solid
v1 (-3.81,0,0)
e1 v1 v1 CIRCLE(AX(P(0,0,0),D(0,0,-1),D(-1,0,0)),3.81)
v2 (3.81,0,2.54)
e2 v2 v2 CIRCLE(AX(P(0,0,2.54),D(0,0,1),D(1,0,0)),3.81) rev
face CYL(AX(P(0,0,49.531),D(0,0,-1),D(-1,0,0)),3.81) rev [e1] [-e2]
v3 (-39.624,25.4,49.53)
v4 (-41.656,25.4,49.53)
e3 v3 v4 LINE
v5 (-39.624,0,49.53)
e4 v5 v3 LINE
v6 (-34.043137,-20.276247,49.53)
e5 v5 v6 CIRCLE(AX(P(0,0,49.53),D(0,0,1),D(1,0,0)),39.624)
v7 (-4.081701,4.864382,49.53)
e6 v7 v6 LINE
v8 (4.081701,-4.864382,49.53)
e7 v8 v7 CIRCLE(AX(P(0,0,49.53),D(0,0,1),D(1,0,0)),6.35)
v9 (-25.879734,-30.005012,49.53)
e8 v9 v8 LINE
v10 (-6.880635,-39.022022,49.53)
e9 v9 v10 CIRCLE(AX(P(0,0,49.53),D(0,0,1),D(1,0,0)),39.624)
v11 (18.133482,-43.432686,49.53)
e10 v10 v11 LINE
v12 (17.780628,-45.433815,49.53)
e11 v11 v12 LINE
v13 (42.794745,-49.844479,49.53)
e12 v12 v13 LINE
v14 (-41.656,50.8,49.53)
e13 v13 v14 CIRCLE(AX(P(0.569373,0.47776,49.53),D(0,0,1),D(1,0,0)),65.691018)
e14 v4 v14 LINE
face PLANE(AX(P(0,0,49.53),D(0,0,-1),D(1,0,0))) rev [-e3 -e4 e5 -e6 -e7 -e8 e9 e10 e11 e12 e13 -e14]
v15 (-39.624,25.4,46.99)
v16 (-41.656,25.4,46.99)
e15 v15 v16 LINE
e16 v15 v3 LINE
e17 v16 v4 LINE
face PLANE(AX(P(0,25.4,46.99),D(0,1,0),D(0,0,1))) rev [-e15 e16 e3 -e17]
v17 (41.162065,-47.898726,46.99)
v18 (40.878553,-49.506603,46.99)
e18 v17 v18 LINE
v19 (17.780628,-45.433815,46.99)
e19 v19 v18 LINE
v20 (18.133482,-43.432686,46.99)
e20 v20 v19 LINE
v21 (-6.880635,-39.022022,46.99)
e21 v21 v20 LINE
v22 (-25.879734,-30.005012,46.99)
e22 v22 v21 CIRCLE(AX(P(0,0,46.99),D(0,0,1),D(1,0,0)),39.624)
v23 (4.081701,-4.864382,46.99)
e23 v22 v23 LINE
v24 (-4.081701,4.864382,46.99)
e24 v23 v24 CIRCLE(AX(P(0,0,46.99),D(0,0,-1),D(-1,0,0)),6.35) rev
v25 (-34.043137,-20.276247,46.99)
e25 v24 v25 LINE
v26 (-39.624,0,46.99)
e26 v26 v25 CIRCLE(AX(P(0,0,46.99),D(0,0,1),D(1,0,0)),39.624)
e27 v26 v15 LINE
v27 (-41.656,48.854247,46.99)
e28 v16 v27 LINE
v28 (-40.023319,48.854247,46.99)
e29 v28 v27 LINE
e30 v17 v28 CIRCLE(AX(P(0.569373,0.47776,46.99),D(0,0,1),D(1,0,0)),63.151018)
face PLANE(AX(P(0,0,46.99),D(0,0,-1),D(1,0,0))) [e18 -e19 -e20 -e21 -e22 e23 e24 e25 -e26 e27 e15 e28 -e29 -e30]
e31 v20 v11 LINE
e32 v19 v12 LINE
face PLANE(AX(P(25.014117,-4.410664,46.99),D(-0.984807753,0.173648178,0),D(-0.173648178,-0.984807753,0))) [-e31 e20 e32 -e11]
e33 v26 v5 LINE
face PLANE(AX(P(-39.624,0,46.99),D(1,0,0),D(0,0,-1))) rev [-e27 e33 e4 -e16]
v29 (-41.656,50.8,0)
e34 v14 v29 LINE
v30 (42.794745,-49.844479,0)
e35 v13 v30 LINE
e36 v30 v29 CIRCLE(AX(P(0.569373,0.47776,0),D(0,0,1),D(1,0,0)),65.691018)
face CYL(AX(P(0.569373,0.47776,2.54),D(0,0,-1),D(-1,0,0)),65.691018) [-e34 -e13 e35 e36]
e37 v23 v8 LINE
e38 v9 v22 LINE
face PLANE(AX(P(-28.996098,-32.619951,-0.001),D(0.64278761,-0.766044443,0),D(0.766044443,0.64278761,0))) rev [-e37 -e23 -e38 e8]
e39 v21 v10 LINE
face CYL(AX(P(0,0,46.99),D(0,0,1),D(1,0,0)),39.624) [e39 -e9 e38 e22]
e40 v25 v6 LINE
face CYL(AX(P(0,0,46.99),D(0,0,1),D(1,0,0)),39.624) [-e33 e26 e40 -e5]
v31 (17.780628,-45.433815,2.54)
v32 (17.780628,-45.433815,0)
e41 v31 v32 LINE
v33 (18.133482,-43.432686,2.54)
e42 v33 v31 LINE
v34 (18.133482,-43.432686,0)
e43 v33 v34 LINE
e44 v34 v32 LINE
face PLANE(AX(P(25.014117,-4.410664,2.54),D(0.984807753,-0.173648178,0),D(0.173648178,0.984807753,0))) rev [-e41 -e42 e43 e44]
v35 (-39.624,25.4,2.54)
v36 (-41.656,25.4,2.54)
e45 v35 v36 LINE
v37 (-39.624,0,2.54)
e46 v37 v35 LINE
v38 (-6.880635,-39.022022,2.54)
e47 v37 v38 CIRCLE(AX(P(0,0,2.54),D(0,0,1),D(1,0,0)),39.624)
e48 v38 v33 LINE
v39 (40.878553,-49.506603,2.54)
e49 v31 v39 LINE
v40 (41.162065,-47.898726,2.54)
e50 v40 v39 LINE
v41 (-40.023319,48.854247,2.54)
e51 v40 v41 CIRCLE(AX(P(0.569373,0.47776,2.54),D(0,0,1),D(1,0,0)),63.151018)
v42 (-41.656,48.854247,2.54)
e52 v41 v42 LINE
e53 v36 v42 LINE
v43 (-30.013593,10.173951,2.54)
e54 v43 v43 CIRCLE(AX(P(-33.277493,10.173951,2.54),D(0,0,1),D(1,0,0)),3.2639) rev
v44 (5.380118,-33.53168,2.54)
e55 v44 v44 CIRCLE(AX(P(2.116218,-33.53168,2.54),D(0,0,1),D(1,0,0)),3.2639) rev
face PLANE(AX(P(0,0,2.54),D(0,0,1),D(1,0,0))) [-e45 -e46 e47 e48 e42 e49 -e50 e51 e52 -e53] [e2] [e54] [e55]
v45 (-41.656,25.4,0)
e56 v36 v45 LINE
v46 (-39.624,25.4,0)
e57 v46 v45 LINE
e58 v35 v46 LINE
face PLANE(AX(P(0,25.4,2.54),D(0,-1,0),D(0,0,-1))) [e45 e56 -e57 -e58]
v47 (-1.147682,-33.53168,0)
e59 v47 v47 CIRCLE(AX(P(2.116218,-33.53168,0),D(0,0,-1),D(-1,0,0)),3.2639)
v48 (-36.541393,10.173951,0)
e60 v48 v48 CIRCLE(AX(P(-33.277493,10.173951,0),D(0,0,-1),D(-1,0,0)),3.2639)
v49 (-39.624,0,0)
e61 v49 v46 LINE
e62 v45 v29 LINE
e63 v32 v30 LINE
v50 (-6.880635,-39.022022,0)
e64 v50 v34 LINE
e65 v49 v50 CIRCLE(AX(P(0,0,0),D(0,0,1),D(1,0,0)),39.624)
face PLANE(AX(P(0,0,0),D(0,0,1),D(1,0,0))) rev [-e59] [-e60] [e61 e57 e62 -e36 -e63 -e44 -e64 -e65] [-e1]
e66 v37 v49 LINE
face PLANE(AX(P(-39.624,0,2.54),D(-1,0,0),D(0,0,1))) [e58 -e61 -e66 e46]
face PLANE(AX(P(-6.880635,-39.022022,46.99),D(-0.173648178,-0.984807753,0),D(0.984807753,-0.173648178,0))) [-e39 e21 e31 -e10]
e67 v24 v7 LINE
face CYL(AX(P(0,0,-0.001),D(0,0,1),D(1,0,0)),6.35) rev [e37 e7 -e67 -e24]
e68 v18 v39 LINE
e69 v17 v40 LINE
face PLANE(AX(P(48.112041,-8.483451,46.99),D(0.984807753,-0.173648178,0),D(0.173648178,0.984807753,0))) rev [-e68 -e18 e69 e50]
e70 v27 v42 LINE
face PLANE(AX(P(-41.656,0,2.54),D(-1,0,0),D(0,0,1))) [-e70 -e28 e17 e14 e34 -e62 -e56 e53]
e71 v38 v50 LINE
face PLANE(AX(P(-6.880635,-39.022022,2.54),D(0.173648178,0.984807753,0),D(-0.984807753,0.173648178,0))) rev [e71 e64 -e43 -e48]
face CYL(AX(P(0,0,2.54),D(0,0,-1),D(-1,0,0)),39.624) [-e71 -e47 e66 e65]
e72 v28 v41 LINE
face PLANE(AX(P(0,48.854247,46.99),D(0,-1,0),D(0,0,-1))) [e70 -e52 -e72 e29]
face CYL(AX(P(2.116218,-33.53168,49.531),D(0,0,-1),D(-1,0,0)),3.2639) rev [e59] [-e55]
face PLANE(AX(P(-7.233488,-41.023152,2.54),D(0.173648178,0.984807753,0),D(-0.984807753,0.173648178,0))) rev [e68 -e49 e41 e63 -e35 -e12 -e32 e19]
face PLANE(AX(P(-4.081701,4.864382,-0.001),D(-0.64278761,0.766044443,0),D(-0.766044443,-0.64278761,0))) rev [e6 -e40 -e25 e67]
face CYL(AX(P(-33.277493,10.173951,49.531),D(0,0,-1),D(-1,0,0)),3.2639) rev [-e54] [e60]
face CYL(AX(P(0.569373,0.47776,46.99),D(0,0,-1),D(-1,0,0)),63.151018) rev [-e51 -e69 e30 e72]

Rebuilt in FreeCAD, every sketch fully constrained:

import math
import FreeCAD as App
import Part
import Sketcher
Q = App.Units.Quantity

doc = App.newDocument("Part")
params = doc.addObject("Spreadsheet::Sheet", "Params")
for row, (alias, value) in enumerate([
    ("sketch1_height", "1 in"),
    ("sketch1_radius", "1.56 in"),
    ("sketch1_length", "1 in"),
    ("sketch1_width", "0.08 in"),
    ("sketch1_length2", "0.08 in"),
    ("pad1_length", "0.1 in"),
    ("pad2_length", "1.75 in"),
    ("sketch3_radius", "0.25 in"),
    ("sketch3_length", "1.7 in"),
    ("sketch4_diameter", "0.257 in"),
    ("sketch5_diameter", "0.257 in"),
    ("sketch6_diameter", "0.3 in"),
], start=1):
    params.set(f"A{row}", alias)
    params.set(f"B{row}", "=" + value)
    params.setAlias(f"B{row}", alias)

body = doc.addObject("PartDesign::Body", "Body")

# Sketch on XY plane
sketch1 = body.newObject("Sketcher::SketchObject", "Sketch")
sketch1.AttachmentSupport = (doc.getObject("XY_Plane"), [""])
sketch1.MapMode = "FlatFace"
sketch1.addGeometry(Part.LineSegment(App.Vector(17.8, -45.4, 0), App.Vector(42.8, -49.8, 0)), False)
sketch1.addGeometry(Part.ArcOfCircle(Part.Circle(App.Vector(0.6, 0.5, 0), App.Vector(0, 0, 1), 65.7), math.radians(-50), math.radians(130)), False)
sketch1.addGeometry(Part.LineSegment(App.Vector(-41.7, 50.8, 0), App.Vector(-41.7, 25.4, 0)), False)
sketch1.addGeometry(Part.LineSegment(App.Vector(-41.7, 25.4, 0), App.Vector(-39.6, 25.4, 0)), False)
sketch1.addGeometry(Part.LineSegment(App.Vector(-39.6, 25.4, 0), App.Vector(-39.6, 0, 0)), False)
sketch1.addGeometry(Part.ArcOfCircle(Part.Circle(App.Vector(0, 0, 0), App.Vector(0, 0, 1), 39.6), math.radians(180), math.radians(260)), False)
sketch1.addGeometry(Part.LineSegment(App.Vector(-6.9, -39, 0), App.Vector(18.1, -43.4, 0)), False)
sketch1.addGeometry(Part.LineSegment(App.Vector(18.1, -43.4, 0), App.Vector(17.8, -45.4, 0)), False)
sketch1.addConstraint(Sketcher.Constraint("Coincident", 0, 2, 1, 1))
sketch1.addConstraint(Sketcher.Constraint("Coincident", 1, 2, 2, 1))
sketch1.addConstraint(Sketcher.Constraint("Coincident", 2, 2, 3, 1))
sketch1.addConstraint(Sketcher.Constraint("Coincident", 3, 2, 4, 1))
sketch1.addConstraint(Sketcher.Constraint("Tangent", 4, 2, 5, 1))
sketch1.addConstraint(Sketcher.Constraint("Tangent", 5, 2, 6, 1))
sketch1.addConstraint(Sketcher.Constraint("Coincident", 6, 2, 7, 1))
sketch1.addConstraint(Sketcher.Constraint("Coincident", 7, 2, 0, 1))
sketch1.addConstraint(Sketcher.Constraint("Vertical", 2))
sketch1.addConstraint(Sketcher.Constraint("Horizontal", 3))
sketch1.addConstraint(Sketcher.Constraint("Vertical", 4))
sketch1.addConstraint(Sketcher.Constraint("Coincident", 5, 3, -1, 1))
sketch1.addConstraint(Sketcher.Constraint("Parallel", 0, 6))
sketch1.addConstraint(Sketcher.Constraint("Perpendicular", 6, 7))
sketch1.addConstraint(Sketcher.Constraint("Equal", 2, 4))
sketch1.addConstraint(Sketcher.Constraint("Equal", 0, 6))
sketch1.addConstraint(Sketcher.Constraint("DistanceY", 2, 2, 2, 1, Q("1 in")))
sketch1.addConstraint(Sketcher.Constraint("Radius", 5, Q("1.56 in")))
sketch1.addConstraint(Sketcher.Constraint("Distance", 0, Q("1 in")))
sketch1.addConstraint(Sketcher.Constraint("Angle", 0, Q("-10 deg")))
sketch1.addConstraint(Sketcher.Constraint("DistanceX", 3, 1, 3, 2, Q("0.08 in")))
sketch1.addConstraint(Sketcher.Constraint("Distance", 7, Q("0.08 in")))
sketch1.addConstraint(Sketcher.Constraint("DistanceY", -1, 1, 1, 3, Q("0.47776 mm")))
sketch1.setExpression("Constraints[16]", "Params.sketch1_height")
sketch1.setExpression("Constraints[17]", "Params.sketch1_radius")
sketch1.setExpression("Constraints[18]", "Params.sketch1_length")
sketch1.setExpression("Constraints[20]", "Params.sketch1_width")
sketch1.setExpression("Constraints[21]", "Params.sketch1_length2")
pad1 = body.newObject("PartDesign::Pad", "Pad")
pad1.Profile = sketch1
pad1.setExpression("Length", "Params.pad1_length")

# Sketch on XY plane
sketch2 = body.newObject("Sketcher::SketchObject", "Sketch001")
sketch2.AttachmentSupport = (doc.getObject("XY_Plane"), [""])
sketch2.MapMode = "FlatFace"
sketch2.AttachmentOffset = App.Placement(App.Vector(0, 0, 0.1 * 25.4), App.Rotation())
sketch2.addGeometry(Part.LineSegment(App.Vector(-41.7, 48.9, 0), App.Vector(-40, 48.9, 0)), False)
sketch2.addGeometry(Part.ArcOfCircle(Part.Circle(App.Vector(0.6, 0.5, 0), App.Vector(0, 0, 1), 63.2), math.radians(-50), math.radians(130)), False)
sketch2.addGeometry(Part.LineSegment(App.Vector(41.2, -47.9, 0), App.Vector(40.9, -49.5, 0)), False)
sketch2.addGeometry(Part.LineSegment(App.Vector(40.9, -49.5, 0), App.Vector(42.8, -49.8, 0)), False)
sketch2.addGeometry(Part.ArcOfCircle(Part.Circle(App.Vector(0.6, 0.5, 0), App.Vector(0, 0, 1), 65.7), math.radians(-50), math.radians(130)), False)
sketch2.addGeometry(Part.LineSegment(App.Vector(-41.7, 50.8, 0), App.Vector(-41.7, 48.9, 0)), False)
sketch2.addConstraint(Sketcher.Constraint("Coincident", 0, 2, 1, 2))
sketch2.addConstraint(Sketcher.Constraint("Coincident", 1, 1, 2, 1))
sketch2.addConstraint(Sketcher.Constraint("Coincident", 2, 2, 3, 1))
sketch2.addConstraint(Sketcher.Constraint("Coincident", 3, 2, 4, 1))
sketch2.addConstraint(Sketcher.Constraint("Coincident", 4, 2, 5, 1))
sketch2.addConstraint(Sketcher.Constraint("Coincident", 5, 2, 0, 1))
sketch2.addConstraint(Sketcher.Constraint("Horizontal", 0))
sketch2.addConstraint(Sketcher.Constraint("Vertical", 5))
sketch2.addConstraint(Sketcher.Constraint("Coincident", 4, 3, 1, 3))
sketch2.addConstraint(Sketcher.Constraint("Perpendicular", 2, 3))
sketch2.addConstraint(Sketcher.Constraint("DistanceY", -1, 1, 4, 2, Q("2 in")))
sketch2.addConstraint(Sketcher.Constraint("Angle", 2, Q("-100 deg")))
sketch2.addConstraint(Sketcher.Constraint("DistanceX", 4, 2, -1, 1, Q("1.64 in")))
sketch2.addConstraint(Sketcher.Constraint("Radius", 1, Q("63.151018 mm")))
sketch2.addConstraint(Sketcher.Constraint("Radius", 4, Q("65.691018 mm")))
sketch2.addConstraint(Sketcher.Constraint("DistanceX", 0, 1, 0, 2, Q("1.632681 mm")))
sketch2.addConstraint(Sketcher.Constraint("Distance", 2, Q("1.632681 mm")))
sketch2.addConstraint(Sketcher.Constraint("DistanceY", -1, 1, 1, 3, Q("0.47776 mm")))
sketch2.addConstraint(Sketcher.Constraint("DistanceY", 3, 2, -1, 1, Q("49.844479 mm")))
pad2 = body.newObject("PartDesign::Pad", "Pad001")
pad2.Profile = sketch2
pad2.setExpression("Length", "Params.pad2_length")
doc.recompute()

datumplane = body.newObject("PartDesign::Plane", "DatumPlane")
datumplane.AttachmentSupport = (doc.getObject("XY_Plane"), [""])
datumplane.MapMode = "FlatFace"
datumplane.AttachmentOffset = App.Placement(App.Vector(0, 0, 0.975 * 25.4), App.Rotation())
mirrored = body.newObject("PartDesign::Mirrored", "Mirrored")
mirrored.Originals = [pad1]
mirrored.MirrorPlane = (datumplane, [""])
body.Tip = mirrored

# Sketch on XY plane
sketch3 = body.newObject("Sketcher::SketchObject", "Sketch002")
sketch3.AttachmentSupport = (doc.getObject("XY_Plane"), [""])
sketch3.MapMode = "FlatFace"
sketch3.AttachmentOffset = App.Placement(App.Vector(0, 0, 1.95 * 25.4), App.Rotation())
sketch3.addGeometry(Part.LineSegment(App.Vector(-4, 5, 0), App.Vector(-37, -23, 0)), False)
sketch3.addGeometry(Part.LineSegment(App.Vector(-37, -23, 0), App.Vector(-29, -33, 0)), False)
sketch3.addGeometry(Part.LineSegment(App.Vector(-29, -33, 0), App.Vector(4, -5, 0)), False)
sketch3.addGeometry(Part.ArcOfCircle(Part.Circle(App.Vector(0, 0, 0), App.Vector(0, 0, 1), 6), math.radians(-50), math.radians(130)), False)
sketch3.addConstraint(Sketcher.Constraint("Coincident", 0, 2, 1, 1))
sketch3.addConstraint(Sketcher.Constraint("Coincident", 1, 2, 2, 1))
sketch3.addConstraint(Sketcher.Constraint("Tangent", 2, 2, 3, 1))
sketch3.addConstraint(Sketcher.Constraint("Tangent", 3, 2, 0, 1))
sketch3.addConstraint(Sketcher.Constraint("Coincident", 3, 3, -1, 1))
sketch3.addConstraint(Sketcher.Constraint("Perpendicular", 0, 1))
sketch3.addConstraint(Sketcher.Constraint("Perpendicular", 1, 2))
sketch3.addConstraint(Sketcher.Constraint("Radius", 3, Q("0.25 in")))
sketch3.addConstraint(Sketcher.Constraint("Angle", 0, Q("-140 deg")))
sketch3.addConstraint(Sketcher.Constraint("Distance", 0, Q("1.7 in")))
sketch3.setExpression("Constraints[7]", "Params.sketch3_radius")
sketch3.setExpression("Constraints[9]", "Params.sketch3_length")
pocket1 = body.newObject("PartDesign::Pocket", "Pocket")
pocket1.Profile = sketch3
pocket1.Type = "UpToFirst"

# Sketch on XY plane
sketch4 = body.newObject("Sketcher::SketchObject", "Sketch003")
sketch4.AttachmentSupport = (doc.getObject("XY_Plane"), [""])
sketch4.MapMode = "FlatFace"
sketch4.addGeometry(Part.Circle(App.Vector(2.1, -33.5, 0), App.Vector(0, 0, 1), 3.3), False)
sketch4.addConstraint(Sketcher.Constraint("Diameter", 0, Q("0.257 in")))
sketch4.addConstraint(Sketcher.Constraint("DistanceY", 0, 3, -1, 1, Q("33.53168 mm")))
sketch4.addConstraint(Sketcher.Constraint("DistanceX", -1, 1, 0, 3, Q("2.116218 mm")))
sketch4.setExpression("Constraints[0]", "Params.sketch4_diameter")
pocket2 = body.newObject("PartDesign::Pocket", "Pocket001")
pocket2.Profile = sketch4
pocket2.Type = "UpToFirst"
pocket2.Reversed = True

# Sketch on XY plane
sketch5 = body.newObject("Sketcher::SketchObject", "Sketch004")
sketch5.AttachmentSupport = (doc.getObject("XY_Plane"), [""])
sketch5.MapMode = "FlatFace"
sketch5.addGeometry(Part.Circle(App.Vector(-33.3, 10.2, 0), App.Vector(0, 0, 1), 3.3), False)
sketch5.addConstraint(Sketcher.Constraint("Diameter", 0, Q("0.257 in")))
sketch5.addConstraint(Sketcher.Constraint("DistanceY", -1, 1, 0, 3, Q("10.173951 mm")))
sketch5.addConstraint(Sketcher.Constraint("DistanceX", 0, 3, -1, 1, Q("33.277493 mm")))
sketch5.setExpression("Constraints[0]", "Params.sketch5_diameter")
pocket3 = body.newObject("PartDesign::Pocket", "Pocket002")
pocket3.Profile = sketch5
pocket3.Type = "UpToFirst"
pocket3.Reversed = True

# Sketch on XY plane
sketch6 = body.newObject("Sketcher::SketchObject", "Sketch005")
sketch6.AttachmentSupport = (doc.getObject("XY_Plane"), [""])
sketch6.MapMode = "FlatFace"
sketch6.addGeometry(Part.Circle(App.Vector(0, 0, 0), App.Vector(0, 0, 1), 3.8), False)
sketch6.addConstraint(Sketcher.Constraint("Coincident", 0, 3, -1, 1))
sketch6.addConstraint(Sketcher.Constraint("Diameter", 0, Q("0.3 in")))
sketch6.setExpression("Constraints[1]", "Params.sketch6_diameter")
pocket4 = body.newObject("PartDesign::Pocket", "Pocket003")
pocket4.Profile = sketch6
pocket4.Type = "UpToFirst"
pocket4.Reversed = True

doc.recompute()
